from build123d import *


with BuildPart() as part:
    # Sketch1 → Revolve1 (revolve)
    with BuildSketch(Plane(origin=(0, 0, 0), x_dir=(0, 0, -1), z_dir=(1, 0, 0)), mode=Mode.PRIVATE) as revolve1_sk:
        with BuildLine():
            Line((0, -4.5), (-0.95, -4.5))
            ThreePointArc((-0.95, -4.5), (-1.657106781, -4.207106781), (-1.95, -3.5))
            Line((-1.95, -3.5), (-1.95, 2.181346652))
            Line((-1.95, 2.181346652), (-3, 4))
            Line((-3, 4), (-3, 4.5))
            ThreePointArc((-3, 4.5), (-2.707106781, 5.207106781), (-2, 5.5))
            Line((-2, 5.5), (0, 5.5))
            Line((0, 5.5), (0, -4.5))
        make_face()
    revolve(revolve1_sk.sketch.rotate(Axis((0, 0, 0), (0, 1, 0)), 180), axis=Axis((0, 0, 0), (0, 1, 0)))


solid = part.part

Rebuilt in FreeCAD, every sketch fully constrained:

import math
import FreeCAD as App
import Part
import Sketcher
Q = App.Units.Quantity

doc = App.newDocument("Part")
params = doc.addObject("Spreadsheet::Sheet", "Params")
for row, (alias, value) in enumerate([
    ("sketch1_radius", "1 mm"),
    ("sketch1_width", "10 mm"),
    ("sketch1_height", "2 mm"),
    ("sketch1_width2", "0.5 mm"),
    ("sketch1_length", "2.1 mm"),
    ("revolution_angle", "360 deg"),
], start=1):
    params.set(f"A{row}", alias)
    params.set(f"B{row}", "=" + value)
    params.setAlias(f"B{row}", alias)

body = doc.addObject("PartDesign::Body", "Body")

sketch1 = doc.addObject("Sketcher::SketchObject", "Sketch")
body.addObject(sketch1)
sketch1.AttachmentSupport = (doc.YZ_Plane, [""])
sketch1.MapMode = "FlatFace"
sketch1.addGeometry([
    Part.LineSegment(App.Vector(-4.5, 0.9, 0), App.Vector(-4.5, 0, 0)),
    Part.LineSegment(App.Vector(-4.5, 0, 0), App.Vector(5.5, 0, 0)),
    Part.LineSegment(App.Vector(5.5, 0, 0), App.Vector(5.5, 2, 0)),
    Part.ArcOfCircle(Part.Circle(App.Vector(4.5, 2, 0), App.Vector(0, 0, 1), 1), math.radians(0), math.radians(90)),
    Part.LineSegment(App.Vector(4.5, 3, 0), App.Vector(4, 3, 0)),
    Part.LineSegment(App.Vector(4, 3, 0), App.Vector(2.2, 1.9, 0)),
    Part.LineSegment(App.Vector(2.2, 1.9, 0), App.Vector(-3.5, 1.9, 0)),
    Part.ArcOfCircle(Part.Circle(App.Vector(-3.5, 0.9, 0), App.Vector(0, 0, 1), 1), math.radians(90), math.radians(180)),
], False)
sketch1.addConstraint([
    Sketcher.Constraint("Coincident", 0, 2, 1, 1),
    Sketcher.Constraint("Coincident", 1, 2, 2, 1),
    Sketcher.Constraint("Tangent", 2, 2, 3, 1),
    Sketcher.Constraint("Tangent", 3, 2, 4, 1),
    Sketcher.Constraint("Coincident", 4, 2, 5, 1),
    Sketcher.Constraint("Coincident", 5, 2, 6, 1),
    Sketcher.Constraint("Tangent", 6, 2, 7, 1),
    Sketcher.Constraint("Tangent", 7, 2, 0, 1),
    Sketcher.Constraint("Vertical", 0),
    Sketcher.Constraint("Horizontal", 1),
    Sketcher.Constraint("Vertical", 2),
    Sketcher.Constraint("Horizontal", 4),
    Sketcher.Constraint("Horizontal", 6),
    Sketcher.Constraint("Equal", 3, 7),
    Sketcher.Constraint("PointOnObject", 0, 2, -1),
    Sketcher.Constraint("Radius", 3, Q("1 mm")),
    Sketcher.Constraint("DistanceX", 1, 1, 1, 2, Q("10 mm")),
    Sketcher.Constraint("DistanceY", 2, 1, 2, 2, Q("2 mm")),
    Sketcher.Constraint("Angle", 5, Q("-150 deg")),
    Sketcher.Constraint("DistanceX", 4, 2, 4, 1, Q("0.5 mm")),
    Sketcher.Constraint("DistanceX", -1, 1, 4, 2, Q("4 mm")),
    Sketcher.Constraint("Distance", 5, Q("2.1 mm")),
])
sketch1.setExpression("Constraints[15]", "Params.sketch1_radius")
sketch1.setExpression("Constraints[16]", "Params.sketch1_width")
sketch1.setExpression("Constraints[17]", "Params.sketch1_height")
sketch1.setExpression("Constraints[19]", "Params.sketch1_width2")
sketch1.setExpression("Constraints[21]", "Params.sketch1_length")
revolution = doc.addObject("PartDesign::Revolution", "Revolution")
body.addObject(revolution)
revolution.Profile = sketch1
revolution.ReferenceAxis = (sketch1, ["H_Axis"])
revolution.setExpression("Angle", "Params.revolution_angle")

doc.recompute()
